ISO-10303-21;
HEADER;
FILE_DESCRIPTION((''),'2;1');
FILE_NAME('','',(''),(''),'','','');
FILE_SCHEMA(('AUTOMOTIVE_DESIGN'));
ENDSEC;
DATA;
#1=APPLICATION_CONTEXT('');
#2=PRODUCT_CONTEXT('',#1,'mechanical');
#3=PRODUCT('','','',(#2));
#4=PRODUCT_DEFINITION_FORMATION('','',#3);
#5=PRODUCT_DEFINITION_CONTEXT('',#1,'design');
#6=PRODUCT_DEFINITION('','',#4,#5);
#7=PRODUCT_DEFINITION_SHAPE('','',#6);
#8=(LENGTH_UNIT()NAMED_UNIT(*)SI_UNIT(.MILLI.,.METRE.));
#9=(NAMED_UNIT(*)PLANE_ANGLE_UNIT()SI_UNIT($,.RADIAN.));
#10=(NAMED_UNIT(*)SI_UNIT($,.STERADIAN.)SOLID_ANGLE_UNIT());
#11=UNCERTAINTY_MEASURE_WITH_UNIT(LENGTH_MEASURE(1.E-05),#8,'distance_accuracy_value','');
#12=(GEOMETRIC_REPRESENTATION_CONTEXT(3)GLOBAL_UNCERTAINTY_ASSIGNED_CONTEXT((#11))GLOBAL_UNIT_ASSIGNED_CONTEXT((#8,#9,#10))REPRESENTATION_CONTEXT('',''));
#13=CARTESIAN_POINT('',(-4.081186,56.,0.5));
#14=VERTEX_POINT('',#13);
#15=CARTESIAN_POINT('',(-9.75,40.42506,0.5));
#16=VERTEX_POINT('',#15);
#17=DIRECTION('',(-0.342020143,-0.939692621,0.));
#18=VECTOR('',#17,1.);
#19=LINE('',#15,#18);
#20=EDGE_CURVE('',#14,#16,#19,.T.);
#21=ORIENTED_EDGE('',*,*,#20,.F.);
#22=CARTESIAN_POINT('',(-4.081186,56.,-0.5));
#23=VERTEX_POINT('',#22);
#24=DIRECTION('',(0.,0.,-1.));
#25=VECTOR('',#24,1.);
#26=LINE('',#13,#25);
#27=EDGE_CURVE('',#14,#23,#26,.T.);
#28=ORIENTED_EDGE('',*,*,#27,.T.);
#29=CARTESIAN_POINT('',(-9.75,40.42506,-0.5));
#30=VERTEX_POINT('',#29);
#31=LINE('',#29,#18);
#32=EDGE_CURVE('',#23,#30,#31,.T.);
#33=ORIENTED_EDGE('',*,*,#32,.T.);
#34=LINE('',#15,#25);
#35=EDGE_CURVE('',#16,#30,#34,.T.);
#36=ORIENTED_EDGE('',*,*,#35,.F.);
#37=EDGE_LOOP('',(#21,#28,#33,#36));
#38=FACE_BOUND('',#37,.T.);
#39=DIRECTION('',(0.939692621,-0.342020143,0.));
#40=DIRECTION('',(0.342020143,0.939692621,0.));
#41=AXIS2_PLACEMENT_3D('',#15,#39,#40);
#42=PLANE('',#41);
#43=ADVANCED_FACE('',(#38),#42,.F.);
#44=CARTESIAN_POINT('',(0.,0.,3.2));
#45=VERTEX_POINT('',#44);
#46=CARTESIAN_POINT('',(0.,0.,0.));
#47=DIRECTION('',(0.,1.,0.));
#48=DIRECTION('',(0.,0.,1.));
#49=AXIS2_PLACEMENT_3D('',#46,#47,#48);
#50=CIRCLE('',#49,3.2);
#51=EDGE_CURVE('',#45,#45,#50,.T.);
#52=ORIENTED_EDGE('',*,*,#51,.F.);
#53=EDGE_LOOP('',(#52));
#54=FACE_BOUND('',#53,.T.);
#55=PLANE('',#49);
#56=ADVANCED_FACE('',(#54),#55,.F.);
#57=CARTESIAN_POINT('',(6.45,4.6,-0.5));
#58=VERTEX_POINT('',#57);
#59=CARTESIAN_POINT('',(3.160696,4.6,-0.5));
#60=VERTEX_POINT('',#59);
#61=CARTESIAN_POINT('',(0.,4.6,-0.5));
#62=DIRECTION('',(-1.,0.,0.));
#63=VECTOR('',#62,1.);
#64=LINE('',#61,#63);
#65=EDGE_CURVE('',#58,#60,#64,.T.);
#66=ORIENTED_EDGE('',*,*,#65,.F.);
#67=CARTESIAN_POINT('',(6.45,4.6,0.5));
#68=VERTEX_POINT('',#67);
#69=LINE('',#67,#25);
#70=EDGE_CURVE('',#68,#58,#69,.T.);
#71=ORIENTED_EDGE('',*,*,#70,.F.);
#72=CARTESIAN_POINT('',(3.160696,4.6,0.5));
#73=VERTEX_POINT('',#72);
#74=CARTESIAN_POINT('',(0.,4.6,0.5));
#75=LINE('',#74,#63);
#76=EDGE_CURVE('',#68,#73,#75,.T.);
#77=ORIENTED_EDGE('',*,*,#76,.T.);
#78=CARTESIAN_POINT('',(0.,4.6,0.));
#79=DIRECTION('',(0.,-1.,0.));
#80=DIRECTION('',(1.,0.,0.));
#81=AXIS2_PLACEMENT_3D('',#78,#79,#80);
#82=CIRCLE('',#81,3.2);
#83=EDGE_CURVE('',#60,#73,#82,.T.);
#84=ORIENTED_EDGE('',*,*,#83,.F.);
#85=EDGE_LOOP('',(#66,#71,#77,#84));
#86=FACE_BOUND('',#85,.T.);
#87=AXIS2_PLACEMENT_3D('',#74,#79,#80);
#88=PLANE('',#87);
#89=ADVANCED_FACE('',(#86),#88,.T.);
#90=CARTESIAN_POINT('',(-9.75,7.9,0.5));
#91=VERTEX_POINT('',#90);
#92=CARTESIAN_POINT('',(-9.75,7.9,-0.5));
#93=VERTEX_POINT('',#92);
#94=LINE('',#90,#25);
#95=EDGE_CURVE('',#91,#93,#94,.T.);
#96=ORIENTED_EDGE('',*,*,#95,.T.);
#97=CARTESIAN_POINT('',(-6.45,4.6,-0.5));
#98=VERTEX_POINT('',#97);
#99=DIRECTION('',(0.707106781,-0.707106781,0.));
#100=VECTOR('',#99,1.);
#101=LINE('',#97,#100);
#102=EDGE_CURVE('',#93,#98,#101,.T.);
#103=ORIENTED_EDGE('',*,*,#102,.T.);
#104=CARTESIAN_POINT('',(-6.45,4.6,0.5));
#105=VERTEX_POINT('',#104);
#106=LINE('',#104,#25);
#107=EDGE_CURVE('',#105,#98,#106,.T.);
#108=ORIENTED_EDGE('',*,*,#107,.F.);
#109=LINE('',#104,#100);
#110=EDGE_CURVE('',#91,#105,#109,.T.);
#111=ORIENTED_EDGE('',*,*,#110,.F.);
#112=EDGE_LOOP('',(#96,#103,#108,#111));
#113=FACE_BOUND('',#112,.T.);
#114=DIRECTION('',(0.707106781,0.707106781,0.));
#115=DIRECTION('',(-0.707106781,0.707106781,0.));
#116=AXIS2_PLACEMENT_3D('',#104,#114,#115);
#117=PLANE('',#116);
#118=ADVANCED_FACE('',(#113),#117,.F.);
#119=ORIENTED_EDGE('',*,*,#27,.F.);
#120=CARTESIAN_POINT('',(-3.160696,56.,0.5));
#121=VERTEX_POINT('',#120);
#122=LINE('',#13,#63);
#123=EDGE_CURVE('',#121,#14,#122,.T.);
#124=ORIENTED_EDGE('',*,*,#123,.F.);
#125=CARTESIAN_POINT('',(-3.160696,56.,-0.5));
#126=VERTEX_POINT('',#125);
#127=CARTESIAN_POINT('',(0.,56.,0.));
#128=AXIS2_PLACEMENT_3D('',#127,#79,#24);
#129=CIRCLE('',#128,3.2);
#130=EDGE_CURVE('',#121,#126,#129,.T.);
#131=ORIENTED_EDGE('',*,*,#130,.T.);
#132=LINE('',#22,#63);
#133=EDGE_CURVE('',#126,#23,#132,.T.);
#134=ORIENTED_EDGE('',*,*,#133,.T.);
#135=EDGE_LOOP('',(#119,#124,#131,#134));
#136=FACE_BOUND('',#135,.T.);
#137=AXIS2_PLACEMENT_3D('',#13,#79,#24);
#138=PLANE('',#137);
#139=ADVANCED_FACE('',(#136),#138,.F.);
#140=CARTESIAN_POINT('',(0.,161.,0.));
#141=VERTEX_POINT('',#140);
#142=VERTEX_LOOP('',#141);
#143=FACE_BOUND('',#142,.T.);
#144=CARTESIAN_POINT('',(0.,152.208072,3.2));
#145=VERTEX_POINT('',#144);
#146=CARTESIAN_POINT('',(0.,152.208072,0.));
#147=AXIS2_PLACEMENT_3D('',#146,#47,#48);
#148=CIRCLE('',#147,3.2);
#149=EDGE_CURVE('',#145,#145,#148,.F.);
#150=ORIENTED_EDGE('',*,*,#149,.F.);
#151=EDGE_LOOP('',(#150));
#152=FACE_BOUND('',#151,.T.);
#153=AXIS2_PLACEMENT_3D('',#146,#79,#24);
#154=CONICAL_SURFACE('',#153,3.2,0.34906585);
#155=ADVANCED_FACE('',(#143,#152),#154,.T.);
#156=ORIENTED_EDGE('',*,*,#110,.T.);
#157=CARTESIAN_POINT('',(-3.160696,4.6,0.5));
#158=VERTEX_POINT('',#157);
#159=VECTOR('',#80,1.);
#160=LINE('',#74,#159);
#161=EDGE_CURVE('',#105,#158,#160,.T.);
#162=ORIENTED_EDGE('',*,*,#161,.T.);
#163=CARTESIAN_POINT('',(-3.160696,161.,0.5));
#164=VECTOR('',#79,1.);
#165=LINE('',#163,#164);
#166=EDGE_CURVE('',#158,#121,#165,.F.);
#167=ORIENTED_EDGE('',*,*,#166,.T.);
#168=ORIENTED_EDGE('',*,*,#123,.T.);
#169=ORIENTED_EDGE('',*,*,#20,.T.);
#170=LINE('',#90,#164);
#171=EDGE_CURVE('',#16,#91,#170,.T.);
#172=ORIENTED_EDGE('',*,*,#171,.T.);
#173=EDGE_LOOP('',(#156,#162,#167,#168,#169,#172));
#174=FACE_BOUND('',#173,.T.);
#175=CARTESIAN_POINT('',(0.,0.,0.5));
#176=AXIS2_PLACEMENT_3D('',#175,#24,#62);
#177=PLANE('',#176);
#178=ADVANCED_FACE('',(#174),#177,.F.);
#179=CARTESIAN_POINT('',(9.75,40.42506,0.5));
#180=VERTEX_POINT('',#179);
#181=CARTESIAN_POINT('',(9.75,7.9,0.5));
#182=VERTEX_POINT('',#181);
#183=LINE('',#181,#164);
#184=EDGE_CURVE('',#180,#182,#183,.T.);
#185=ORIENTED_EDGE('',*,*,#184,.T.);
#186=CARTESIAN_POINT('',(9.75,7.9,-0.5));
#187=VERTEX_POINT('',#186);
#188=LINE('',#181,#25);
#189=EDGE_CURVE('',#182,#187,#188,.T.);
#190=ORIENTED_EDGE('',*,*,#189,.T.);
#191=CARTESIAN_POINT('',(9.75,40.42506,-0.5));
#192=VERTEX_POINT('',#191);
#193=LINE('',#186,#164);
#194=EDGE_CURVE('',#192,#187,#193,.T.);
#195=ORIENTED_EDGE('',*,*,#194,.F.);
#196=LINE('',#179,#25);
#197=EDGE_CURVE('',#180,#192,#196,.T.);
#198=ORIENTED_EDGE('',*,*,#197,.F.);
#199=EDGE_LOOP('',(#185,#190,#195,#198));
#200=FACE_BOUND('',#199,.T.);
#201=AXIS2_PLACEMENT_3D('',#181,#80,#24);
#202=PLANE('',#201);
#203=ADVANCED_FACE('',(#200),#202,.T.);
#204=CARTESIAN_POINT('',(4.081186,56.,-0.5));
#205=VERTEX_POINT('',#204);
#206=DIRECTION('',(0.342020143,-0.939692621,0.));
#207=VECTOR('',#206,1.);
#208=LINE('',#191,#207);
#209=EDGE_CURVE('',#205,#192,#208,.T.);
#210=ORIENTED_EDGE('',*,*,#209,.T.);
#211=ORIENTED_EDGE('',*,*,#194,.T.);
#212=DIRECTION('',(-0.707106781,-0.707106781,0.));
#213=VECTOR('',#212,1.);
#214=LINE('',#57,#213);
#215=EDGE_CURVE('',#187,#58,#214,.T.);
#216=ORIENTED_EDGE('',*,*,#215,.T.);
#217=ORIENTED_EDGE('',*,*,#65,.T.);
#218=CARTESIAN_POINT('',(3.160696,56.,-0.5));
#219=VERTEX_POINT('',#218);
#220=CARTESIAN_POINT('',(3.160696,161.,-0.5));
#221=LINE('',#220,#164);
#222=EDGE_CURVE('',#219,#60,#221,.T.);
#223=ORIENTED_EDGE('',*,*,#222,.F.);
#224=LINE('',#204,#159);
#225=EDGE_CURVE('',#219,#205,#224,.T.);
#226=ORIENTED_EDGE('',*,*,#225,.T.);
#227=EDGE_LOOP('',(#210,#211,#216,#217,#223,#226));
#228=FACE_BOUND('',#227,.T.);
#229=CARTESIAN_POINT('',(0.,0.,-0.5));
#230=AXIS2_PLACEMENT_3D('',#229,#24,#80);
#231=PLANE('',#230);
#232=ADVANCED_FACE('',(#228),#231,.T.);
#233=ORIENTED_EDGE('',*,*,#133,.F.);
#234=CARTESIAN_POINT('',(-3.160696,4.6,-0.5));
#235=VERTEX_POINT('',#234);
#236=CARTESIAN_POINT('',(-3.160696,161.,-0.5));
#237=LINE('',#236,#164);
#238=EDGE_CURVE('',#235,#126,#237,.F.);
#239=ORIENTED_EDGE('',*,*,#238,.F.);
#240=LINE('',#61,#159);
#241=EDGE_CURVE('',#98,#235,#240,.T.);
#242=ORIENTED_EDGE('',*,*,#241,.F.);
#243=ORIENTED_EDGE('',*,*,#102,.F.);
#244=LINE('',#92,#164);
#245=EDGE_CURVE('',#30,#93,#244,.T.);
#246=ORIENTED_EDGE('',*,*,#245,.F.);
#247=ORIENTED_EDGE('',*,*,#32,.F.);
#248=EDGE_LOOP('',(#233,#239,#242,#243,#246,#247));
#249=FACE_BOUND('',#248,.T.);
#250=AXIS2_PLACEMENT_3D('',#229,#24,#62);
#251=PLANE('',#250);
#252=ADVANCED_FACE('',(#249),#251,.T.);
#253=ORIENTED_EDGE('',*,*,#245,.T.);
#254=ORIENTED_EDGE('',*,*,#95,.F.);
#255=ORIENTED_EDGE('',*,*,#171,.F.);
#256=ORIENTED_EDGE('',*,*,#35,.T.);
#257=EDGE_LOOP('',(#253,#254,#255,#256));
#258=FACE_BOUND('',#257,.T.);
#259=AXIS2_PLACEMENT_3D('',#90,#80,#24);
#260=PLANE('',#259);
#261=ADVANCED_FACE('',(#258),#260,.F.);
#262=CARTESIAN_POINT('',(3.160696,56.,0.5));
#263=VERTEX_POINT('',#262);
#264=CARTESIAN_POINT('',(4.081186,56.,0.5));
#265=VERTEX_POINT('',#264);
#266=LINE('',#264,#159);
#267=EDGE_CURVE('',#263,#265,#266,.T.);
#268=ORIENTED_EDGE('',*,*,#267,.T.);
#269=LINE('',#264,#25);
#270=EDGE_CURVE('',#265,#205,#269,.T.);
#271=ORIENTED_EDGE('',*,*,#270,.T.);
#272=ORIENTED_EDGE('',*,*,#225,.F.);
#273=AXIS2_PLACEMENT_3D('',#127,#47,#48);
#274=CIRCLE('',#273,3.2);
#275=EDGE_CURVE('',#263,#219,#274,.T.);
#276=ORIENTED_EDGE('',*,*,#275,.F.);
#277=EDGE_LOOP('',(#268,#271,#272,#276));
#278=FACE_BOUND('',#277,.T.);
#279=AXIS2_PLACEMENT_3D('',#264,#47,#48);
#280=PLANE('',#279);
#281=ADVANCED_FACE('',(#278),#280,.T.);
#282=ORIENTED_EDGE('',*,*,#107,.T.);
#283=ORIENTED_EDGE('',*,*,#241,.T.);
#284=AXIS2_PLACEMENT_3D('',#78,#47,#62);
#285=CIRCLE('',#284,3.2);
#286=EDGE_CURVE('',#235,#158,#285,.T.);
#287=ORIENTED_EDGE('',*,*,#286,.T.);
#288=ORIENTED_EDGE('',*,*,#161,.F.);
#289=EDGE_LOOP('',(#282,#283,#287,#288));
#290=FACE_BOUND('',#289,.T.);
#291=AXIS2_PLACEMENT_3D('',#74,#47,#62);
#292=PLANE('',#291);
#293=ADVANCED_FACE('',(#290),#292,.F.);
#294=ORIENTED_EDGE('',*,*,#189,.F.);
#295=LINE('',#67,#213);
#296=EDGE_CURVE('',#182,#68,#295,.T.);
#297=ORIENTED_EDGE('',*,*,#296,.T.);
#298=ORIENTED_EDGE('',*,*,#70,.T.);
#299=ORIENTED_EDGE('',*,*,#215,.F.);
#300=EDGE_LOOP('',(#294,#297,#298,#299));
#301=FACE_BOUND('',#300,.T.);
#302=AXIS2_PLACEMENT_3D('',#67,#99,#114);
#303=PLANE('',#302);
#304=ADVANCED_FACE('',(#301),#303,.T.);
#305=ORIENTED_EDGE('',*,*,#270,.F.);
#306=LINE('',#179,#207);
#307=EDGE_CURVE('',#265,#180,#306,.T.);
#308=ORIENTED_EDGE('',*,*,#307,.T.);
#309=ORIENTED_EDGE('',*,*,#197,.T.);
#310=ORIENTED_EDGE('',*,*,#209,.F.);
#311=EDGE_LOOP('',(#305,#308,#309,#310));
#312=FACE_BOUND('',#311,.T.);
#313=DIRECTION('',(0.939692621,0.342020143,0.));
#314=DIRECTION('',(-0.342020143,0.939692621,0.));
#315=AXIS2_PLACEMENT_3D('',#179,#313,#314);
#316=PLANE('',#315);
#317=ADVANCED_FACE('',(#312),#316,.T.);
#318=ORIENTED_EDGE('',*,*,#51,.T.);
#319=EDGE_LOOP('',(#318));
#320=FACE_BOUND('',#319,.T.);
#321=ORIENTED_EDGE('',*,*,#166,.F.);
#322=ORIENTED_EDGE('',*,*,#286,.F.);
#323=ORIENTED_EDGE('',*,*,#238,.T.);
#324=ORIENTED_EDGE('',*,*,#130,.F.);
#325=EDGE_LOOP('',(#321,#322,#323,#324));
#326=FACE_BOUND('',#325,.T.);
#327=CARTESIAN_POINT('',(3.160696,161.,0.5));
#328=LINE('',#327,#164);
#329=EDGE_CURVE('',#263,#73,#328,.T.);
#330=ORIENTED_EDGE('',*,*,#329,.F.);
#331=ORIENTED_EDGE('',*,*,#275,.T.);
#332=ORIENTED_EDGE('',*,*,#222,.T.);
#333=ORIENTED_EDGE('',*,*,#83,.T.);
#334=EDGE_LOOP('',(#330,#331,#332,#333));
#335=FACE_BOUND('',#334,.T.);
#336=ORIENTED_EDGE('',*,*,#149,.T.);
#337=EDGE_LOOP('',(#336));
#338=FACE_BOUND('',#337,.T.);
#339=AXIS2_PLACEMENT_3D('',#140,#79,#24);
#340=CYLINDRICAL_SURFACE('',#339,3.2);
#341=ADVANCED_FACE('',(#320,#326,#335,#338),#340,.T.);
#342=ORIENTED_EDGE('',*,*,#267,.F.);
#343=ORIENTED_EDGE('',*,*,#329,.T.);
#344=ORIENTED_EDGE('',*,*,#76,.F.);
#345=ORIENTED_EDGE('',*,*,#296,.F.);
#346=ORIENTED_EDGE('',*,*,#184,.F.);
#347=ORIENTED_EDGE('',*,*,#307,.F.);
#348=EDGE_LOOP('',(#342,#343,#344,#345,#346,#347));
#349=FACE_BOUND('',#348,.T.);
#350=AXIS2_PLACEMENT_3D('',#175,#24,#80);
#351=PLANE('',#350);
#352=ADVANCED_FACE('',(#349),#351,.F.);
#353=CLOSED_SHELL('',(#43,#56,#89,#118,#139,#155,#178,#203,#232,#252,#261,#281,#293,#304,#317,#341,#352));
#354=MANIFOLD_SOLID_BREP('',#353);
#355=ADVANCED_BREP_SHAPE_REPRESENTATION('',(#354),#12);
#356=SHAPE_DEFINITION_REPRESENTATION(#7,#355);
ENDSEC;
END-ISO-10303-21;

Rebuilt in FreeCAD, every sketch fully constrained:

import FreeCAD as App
import Part
import Sketcher
from FreeCAD import Vector
Q = App.Units.Quantity


def edges_at(feature, points):
    """Names of the edges that pass closest to the given points."""
    edges = feature.Shape.Edges
    near = lambda p: min(range(len(edges)), key=lambda i: edges[i].distToShape(Part.Vertex(*p))[0])
    return sorted({f"Edge{near(p) + 1}" for p in points})


def add_polygon(sketch, points):
    """Adds a closed chain of lines whose ends are joined by coincident constraints."""
    first, n = sketch.GeometryCount, len(points)
    for a, b in zip(points, points[1:] + points[:1]):
        sketch.addGeometry(Part.LineSegment(App.Vector(*a, 0), App.Vector(*b, 0)), False)
    for i in range(n):
        sketch.addConstraint(Sketcher.Constraint("Coincident", first + i, 2, first + (i + 1) % n, 1))

doc = App.newDocument("Part")
params = doc.addObject("Spreadsheet::Sheet", "Params")
for row, (alias, value) in enumerate([
    ("sketch1_diameter", "6.4 mm"),
    ("pad1_length", "161 mm"),
    ("chamfer_size", "3.2 mm"),
    ("chamfer_size2", "8.791928 mm"),
    ("sketch2_height", "51.4 mm"),
    ("sketch2_width", "6.45 mm"),
    ("pad2_length", "1 mm"),
], start=1):
    params.set(f"A{row}", alias)
    params.set(f"B{row}", "=" + value)
    params.setAlias(f"B{row}", alias)

body = doc.addObject("PartDesign::Body", "Body")

sketch1 = body.newObject("Sketcher::SketchObject", "Sketch")
sketch1.AttachmentSupport = (doc.getObject("XZ_Plane"), [""])
sketch1.MapMode = "FlatFace"
sketch1.addGeometry(Part.Circle(Vector(0, 0, 0), Vector(0, 0, 1), 3.2), False)
sketch1.addConstraint([
    Sketcher.Constraint("Coincident", 0, 3, -1, 1),
    Sketcher.Constraint("Diameter", 0, 6.4),
])
sketch1.setExpression("Constraints[1]", "Params.sketch1_diameter")
pad1 = body.newObject("PartDesign::Pad", "Pad")
pad1.Profile = sketch1
pad1.setExpression("Length", "Params.pad1_length")
pad1.Reversed = True
doc.recompute()

chamfer = body.newObject("PartDesign::Chamfer", "Chamfer")
chamfer.Base = (pad1, edges_at(pad1, [(0, 161, -3.2)]))
chamfer.ChamferType = "Two distances"
chamfer.setExpression("Size", "Params.chamfer_size")
chamfer.setExpression("Size2", "Params.chamfer_size2")
chamfer.FlipDirection = True

sketch2 = body.newObject("Sketcher::SketchObject", "Sketch001")
sketch2.AttachmentSupport = (doc.getObject("XY_Plane"), [""])
sketch2.MapMode = "FlatFace"
add_polygon(sketch2, [(-6.45, 4.6), (0, 4.6), (0, 56), (-4.081186, 56), (-9.75, 40.42506), (-9.75, 7.9)])
sketch2.addConstraint([
    Sketcher.Constraint("Horizontal", 0),
    Sketcher.Constraint("Vertical", 1),
    Sketcher.Constraint("Horizontal", 2),
    Sketcher.Constraint("Vertical", 4),
    Sketcher.Constraint("PointOnObject", 0, 2, -2),
    Sketcher.Constraint("Angle", 3, Q("-110 deg")),
    Sketcher.Constraint("Angle", 5, Q("-45 deg")),
    Sketcher.Constraint("DistanceY", 1, 1, 1, 2, 51.4),
    Sketcher.Constraint("DistanceY", -1, 1, 1, 2, 56.0),
    Sketcher.Constraint("DistanceX", 0, 1, 0, 2, 6.45),
    Sketcher.Constraint("DistanceY", -1, 1, 4, 2, 7.9),
    Sketcher.Constraint("DistanceY", 4, 2, 4, 1, 32.52506),
])
sketch2.setExpression("Constraints[13]", "Params.sketch2_height")
sketch2.setExpression("Constraints[15]", "Params.sketch2_width")
pad2 = body.newObject("PartDesign::Pad", "Pad001")
pad2.Profile = sketch2
pad2.setExpression("Length", "Params.pad2_length")
pad2.Midplane = True
doc.recompute()

mirrored = body.newObject("PartDesign::Mirrored", "Mirrored")
mirrored.Originals = [pad2]
mirrored.MirrorPlane = (doc.getObject("YZ_Plane"), [""])
body.Tip = mirrored

doc.recompute()
